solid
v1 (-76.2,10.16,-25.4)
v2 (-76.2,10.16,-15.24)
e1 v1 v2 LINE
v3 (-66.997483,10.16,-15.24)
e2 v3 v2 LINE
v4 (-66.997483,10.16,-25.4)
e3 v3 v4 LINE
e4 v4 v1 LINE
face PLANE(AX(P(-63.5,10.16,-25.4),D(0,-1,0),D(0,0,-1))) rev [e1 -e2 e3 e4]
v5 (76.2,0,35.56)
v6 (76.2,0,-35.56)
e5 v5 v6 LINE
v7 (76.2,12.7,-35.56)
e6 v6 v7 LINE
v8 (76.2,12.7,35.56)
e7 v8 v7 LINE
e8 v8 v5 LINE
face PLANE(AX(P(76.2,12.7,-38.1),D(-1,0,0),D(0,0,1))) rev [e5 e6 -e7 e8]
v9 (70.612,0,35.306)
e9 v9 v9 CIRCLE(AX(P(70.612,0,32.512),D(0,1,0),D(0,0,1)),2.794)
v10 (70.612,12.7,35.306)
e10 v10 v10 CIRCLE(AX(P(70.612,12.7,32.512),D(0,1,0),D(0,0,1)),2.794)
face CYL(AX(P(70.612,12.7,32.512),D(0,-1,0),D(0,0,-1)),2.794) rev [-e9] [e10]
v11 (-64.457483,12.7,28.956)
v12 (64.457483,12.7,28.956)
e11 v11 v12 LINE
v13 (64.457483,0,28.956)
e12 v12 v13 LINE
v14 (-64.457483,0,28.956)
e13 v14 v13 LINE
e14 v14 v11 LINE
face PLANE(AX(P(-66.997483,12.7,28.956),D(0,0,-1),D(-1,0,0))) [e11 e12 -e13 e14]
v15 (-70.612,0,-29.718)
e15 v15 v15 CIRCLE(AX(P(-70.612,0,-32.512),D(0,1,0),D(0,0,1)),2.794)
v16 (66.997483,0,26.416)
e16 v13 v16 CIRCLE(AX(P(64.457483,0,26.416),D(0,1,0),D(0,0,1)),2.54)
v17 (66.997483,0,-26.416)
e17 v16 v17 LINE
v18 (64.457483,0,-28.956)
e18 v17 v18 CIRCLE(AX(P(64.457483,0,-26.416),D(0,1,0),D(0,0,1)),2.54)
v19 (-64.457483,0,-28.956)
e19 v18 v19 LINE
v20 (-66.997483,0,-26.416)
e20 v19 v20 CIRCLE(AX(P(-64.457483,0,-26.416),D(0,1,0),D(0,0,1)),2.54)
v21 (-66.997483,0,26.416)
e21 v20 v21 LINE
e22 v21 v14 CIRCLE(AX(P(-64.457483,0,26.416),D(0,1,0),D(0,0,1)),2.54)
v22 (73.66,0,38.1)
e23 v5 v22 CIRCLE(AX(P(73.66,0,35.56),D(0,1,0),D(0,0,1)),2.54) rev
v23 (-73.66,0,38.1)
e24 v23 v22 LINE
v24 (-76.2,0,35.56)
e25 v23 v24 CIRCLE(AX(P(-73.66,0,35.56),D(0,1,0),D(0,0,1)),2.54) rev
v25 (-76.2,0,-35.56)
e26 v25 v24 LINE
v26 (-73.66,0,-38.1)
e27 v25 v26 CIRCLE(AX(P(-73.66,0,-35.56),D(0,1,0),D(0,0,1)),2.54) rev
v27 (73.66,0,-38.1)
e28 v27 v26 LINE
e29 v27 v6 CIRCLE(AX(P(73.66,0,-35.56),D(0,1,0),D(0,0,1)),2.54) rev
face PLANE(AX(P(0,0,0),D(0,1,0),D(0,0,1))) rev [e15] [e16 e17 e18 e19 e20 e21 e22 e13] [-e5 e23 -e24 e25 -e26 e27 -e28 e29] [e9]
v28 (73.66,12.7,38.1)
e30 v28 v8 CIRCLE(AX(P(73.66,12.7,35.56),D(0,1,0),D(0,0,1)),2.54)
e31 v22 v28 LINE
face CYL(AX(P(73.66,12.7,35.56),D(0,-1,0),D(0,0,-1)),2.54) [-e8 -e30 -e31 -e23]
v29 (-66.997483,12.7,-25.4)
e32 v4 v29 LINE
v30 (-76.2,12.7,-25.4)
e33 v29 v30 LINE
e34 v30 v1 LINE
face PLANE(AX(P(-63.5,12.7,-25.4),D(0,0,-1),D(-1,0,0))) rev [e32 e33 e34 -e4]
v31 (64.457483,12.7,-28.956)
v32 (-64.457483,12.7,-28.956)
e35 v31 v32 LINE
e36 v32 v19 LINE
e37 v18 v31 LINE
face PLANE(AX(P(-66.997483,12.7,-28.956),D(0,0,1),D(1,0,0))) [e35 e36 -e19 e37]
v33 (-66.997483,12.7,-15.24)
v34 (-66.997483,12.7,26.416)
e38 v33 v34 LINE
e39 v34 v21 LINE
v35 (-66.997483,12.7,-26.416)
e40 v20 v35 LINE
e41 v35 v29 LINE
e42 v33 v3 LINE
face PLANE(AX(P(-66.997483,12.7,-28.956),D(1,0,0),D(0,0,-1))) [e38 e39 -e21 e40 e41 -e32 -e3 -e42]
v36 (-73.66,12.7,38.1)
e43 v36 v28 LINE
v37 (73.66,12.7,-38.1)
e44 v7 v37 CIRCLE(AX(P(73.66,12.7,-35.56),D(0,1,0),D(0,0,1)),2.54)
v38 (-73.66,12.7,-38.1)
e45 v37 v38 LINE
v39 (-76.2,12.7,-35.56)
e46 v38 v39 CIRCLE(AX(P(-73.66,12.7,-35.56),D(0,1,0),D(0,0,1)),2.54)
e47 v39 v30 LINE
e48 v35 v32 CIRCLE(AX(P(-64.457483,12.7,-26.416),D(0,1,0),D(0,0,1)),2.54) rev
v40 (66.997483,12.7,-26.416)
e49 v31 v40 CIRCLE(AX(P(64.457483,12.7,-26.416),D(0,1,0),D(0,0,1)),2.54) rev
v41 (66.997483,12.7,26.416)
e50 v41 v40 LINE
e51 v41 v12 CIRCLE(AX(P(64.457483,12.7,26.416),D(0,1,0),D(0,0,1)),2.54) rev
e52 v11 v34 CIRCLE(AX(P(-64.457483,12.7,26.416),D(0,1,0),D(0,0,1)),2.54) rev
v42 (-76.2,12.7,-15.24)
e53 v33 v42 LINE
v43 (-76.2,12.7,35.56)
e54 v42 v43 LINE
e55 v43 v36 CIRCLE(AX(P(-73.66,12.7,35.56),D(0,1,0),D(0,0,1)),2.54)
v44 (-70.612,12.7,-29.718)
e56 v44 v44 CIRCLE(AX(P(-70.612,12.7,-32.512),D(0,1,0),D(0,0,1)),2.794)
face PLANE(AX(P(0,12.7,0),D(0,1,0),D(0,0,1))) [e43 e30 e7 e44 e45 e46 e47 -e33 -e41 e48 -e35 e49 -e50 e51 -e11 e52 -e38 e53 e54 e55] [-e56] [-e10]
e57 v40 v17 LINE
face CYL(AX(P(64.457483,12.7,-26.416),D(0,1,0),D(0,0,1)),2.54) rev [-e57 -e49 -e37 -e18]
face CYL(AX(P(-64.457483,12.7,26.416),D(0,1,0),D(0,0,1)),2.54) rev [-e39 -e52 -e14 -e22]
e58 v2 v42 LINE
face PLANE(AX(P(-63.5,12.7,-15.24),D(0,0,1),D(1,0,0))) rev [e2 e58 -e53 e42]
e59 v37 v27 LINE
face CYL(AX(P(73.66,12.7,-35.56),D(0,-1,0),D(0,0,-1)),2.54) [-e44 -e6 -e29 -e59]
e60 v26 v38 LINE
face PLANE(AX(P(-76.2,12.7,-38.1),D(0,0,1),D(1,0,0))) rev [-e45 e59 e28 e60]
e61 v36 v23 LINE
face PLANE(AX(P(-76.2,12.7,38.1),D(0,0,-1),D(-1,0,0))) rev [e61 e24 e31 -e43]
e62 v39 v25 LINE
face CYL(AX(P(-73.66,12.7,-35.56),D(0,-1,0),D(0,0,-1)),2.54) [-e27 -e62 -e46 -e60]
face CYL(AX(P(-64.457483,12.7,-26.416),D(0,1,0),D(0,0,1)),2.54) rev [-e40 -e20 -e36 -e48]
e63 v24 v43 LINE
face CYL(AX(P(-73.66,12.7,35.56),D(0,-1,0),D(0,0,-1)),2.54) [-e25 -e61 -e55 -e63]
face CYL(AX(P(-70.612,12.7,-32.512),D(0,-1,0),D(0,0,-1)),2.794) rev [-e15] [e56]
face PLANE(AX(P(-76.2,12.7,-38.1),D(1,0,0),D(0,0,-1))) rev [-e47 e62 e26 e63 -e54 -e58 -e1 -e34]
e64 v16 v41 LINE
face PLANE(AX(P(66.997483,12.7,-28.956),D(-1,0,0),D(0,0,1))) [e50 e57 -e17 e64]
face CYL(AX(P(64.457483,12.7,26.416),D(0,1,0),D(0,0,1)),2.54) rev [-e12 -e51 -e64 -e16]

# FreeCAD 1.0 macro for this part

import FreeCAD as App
import Part
import Sketcher
Q = App.Units.Quantity


def edges_at(feature, points):
    """Names of the edges that pass closest to the given points."""
    edges = feature.Shape.Edges
    near = lambda p: min(range(len(edges)), key=lambda i: edges[i].distToShape(Part.Vertex(*p))[0])
    return sorted({f"Edge{near(p) + 1}" for p in points})

doc = App.newDocument("Part")
body = doc.addObject("PartDesign::Body", "Body")

sketch1 = body.newObject("Sketcher::SketchObject", "Sketch")
sketch1.AttachmentSupport = (doc.getObject("XZ_Plane"), [""])
sketch1.MapMode = "FlatFace"
sketch1.addGeometry(Part.LineSegment(App.Vector(-76, -38, 0), App.Vector(-76, 38, 0)), False)
sketch1.addGeometry(Part.LineSegment(App.Vector(-76, 38, 0), App.Vector(76, 38, 0)), False)
sketch1.addGeometry(Part.LineSegment(App.Vector(76, 38, 0), App.Vector(76, -38, 0)), False)
sketch1.addGeometry(Part.LineSegment(App.Vector(76, -38, 0), App.Vector(-76, -38, 0)), False)
sketch1.addConstraint(Sketcher.Constraint("Coincident", 0, 2, 1, 1))
sketch1.addConstraint(Sketcher.Constraint("Coincident", 1, 2, 2, 1))
sketch1.addConstraint(Sketcher.Constraint("Coincident", 2, 2, 3, 1))
sketch1.addConstraint(Sketcher.Constraint("Coincident", 3, 2, 0, 1))
sketch1.addConstraint(Sketcher.Constraint("Vertical", 0))
sketch1.addConstraint(Sketcher.Constraint("Horizontal", 1))
sketch1.addConstraint(Sketcher.Constraint("Vertical", 2))
sketch1.addConstraint(Sketcher.Constraint("Horizontal", 3))
sketch1.addConstraint(Sketcher.Constraint("Symmetric", 0, 2, 2, 2, -1, 1))
sketch1.addConstraint(Sketcher.Constraint("DistanceX", 1, 1, 1, 2, Q("6 in")))
sketch1.addConstraint(Sketcher.Constraint("DistanceY", 0, 1, 0, 2, Q("3 in")))
pad1 = body.newObject("PartDesign::Pad", "Pad")
pad1.Profile = sketch1
pad1.Length = Q("0.5 in")
pad1.Reversed = True
doc.recompute()

fillet = body.newObject("PartDesign::Fillet", "Fillet")
fillet.Base = (pad1, edges_at(pad1, [
    (76.2, 6.35, 38.1),
    (-76.2, 6.35, 38.1),
    (-76.2, 6.35, -38.1),
    (76.2, 6.35, -38.1),
]))
fillet.Radius = Q("0.1 in")

sketch2 = body.newObject("Sketcher::SketchObject", "Sketch001")
sketch2.AttachmentSupport = (doc.getObject("XZ_Plane"), [""])
sketch2.MapMode = "FlatFace"
sketch2.addGeometry(Part.LineSegment(App.Vector(-67, -29, 0), App.Vector(-67, 29, 0)), False)
sketch2.addGeometry(Part.LineSegment(App.Vector(-67, 29, 0), App.Vector(67, 29, 0)), False)
sketch2.addGeometry(Part.LineSegment(App.Vector(67, 29, 0), App.Vector(67, -29, 0)), False)
sketch2.addGeometry(Part.LineSegment(App.Vector(67, -29, 0), App.Vector(-67, -29, 0)), False)
sketch2.addConstraint(Sketcher.Constraint("Coincident", 0, 2, 1, 1))
sketch2.addConstraint(Sketcher.Constraint("Coincident", 1, 2, 2, 1))
sketch2.addConstraint(Sketcher.Constraint("Coincident", 2, 2, 3, 1))
sketch2.addConstraint(Sketcher.Constraint("Coincident", 3, 2, 0, 1))
sketch2.addConstraint(Sketcher.Constraint("Vertical", 0))
sketch2.addConstraint(Sketcher.Constraint("Horizontal", 1))
sketch2.addConstraint(Sketcher.Constraint("Vertical", 2))
sketch2.addConstraint(Sketcher.Constraint("Horizontal", 3))
sketch2.addConstraint(Sketcher.Constraint("Symmetric", 0, 2, 2, 2, -1, 1))
sketch2.addConstraint(Sketcher.Constraint("DistanceY", 0, 1, 0, 2, Q("2.28 in")))
sketch2.addConstraint(Sketcher.Constraint("DistanceX", 1, 1, 1, 2, Q("133.994966 mm")))
pocket1 = body.newObject("PartDesign::Pocket", "Pocket")
pocket1.Profile = sketch2
pocket1.Type = "ThroughAll"
doc.recompute()

fillet2 = body.newObject("PartDesign::Fillet", "Fillet001")
fillet2.Base = (pocket1, edges_at(pocket1, [
    (66.997, 6.35, 28.956),
    (66.997, 6.35, -28.956),
    (-66.997, 6.35, -28.956),
    (-66.997, 6.35, 28.956),
]))
fillet2.Radius = Q("0.1 in")

sketch3 = body.newObject("Sketcher::SketchObject", "Sketch002")
sketch3.AttachmentSupport = (doc.getObject("YZ_Plane"), [""])
sketch3.MapMode = "FlatFace"
sketch3.AttachmentOffset = App.Placement(App.Vector(0, 0, -3 * 25.4), App.Rotation())
sketch3.addGeometry(Part.LineSegment(App.Vector(12.7, -25.4, 0), App.Vector(10.2, -25.4, 0)), False)
sketch3.addGeometry(Part.LineSegment(App.Vector(10.2, -25.4, 0), App.Vector(10.2, -15.2, 0)), False)
sketch3.addGeometry(Part.LineSegment(App.Vector(10.2, -15.2, 0), App.Vector(12.7, -15.2, 0)), False)
sketch3.addGeometry(Part.LineSegment(App.Vector(12.7, -15.2, 0), App.Vector(12.7, -25.4, 0)), False)
sketch3.addConstraint(Sketcher.Constraint("Coincident", 0, 2, 1, 1))
sketch3.addConstraint(Sketcher.Constraint("Coincident", 1, 2, 2, 1))
sketch3.addConstraint(Sketcher.Constraint("Coincident", 2, 2, 3, 1))
sketch3.addConstraint(Sketcher.Constraint("Coincident", 3, 2, 0, 1))
sketch3.addConstraint(Sketcher.Constraint("Horizontal", 0))
sketch3.addConstraint(Sketcher.Constraint("Vertical", 1))
sketch3.addConstraint(Sketcher.Constraint("Horizontal", 2))
sketch3.addConstraint(Sketcher.Constraint("Vertical", 3))
sketch3.addConstraint(Sketcher.Constraint("DistanceX", 0, 2, 0, 1, Q("0.1 in")))
sketch3.addConstraint(Sketcher.Constraint("DistanceY", 1, 1, 1, 2, Q("0.4 in")))
sketch3.addConstraint(Sketcher.Constraint("DistanceY", 0, 2, -1, 1, Q("1 in")))
sketch3.addConstraint(Sketcher.Constraint("DistanceX", -1, 1, 0, 2, Q("0.4 in")))
pocket2 = body.newObject("PartDesign::Pocket", "Pocket001")
pocket2.Profile = sketch3
pocket2.Length = Q("0.5 in")
pocket2.Reversed = True

sketch4 = body.newObject("Sketcher::SketchObject", "Sketch003")
sketch4.AttachmentSupport = (doc.getObject("XZ_Plane"), [""])
sketch4.MapMode = "FlatFace"
sketch4.addGeometry(Part.Circle(App.Vector(-70.6, -32.5, 0), App.Vector(0, 0, 1), 2.8), False)
sketch4.addConstraint(Sketcher.Constraint("Diameter", 0, Q("0.22 in")))
sketch4.addConstraint(Sketcher.Constraint("DistanceX", 0, 3, -1, 1, Q("2.78 in")))
sketch4.addConstraint(Sketcher.Constraint("DistanceY", 0, 3, -1, 1, Q("1.28 in")))
pocket3 = body.newObject("PartDesign::Pocket", "Pocket002")
pocket3.Profile = sketch4
pocket3.Length = Q("0.5 in")

sketch5 = body.newObject("Sketcher::SketchObject", "Sketch004")
sketch5.AttachmentSupport = (doc.getObject("XZ_Plane"), [""])
sketch5.MapMode = "FlatFace"
sketch5.addGeometry(Part.Circle(App.Vector(70.6, 32.5, 0), App.Vector(0, 0, 1), 2.8), False)
sketch5.addConstraint(Sketcher.Constraint("Diameter", 0, Q("0.22 in")))
sketch5.addConstraint(Sketcher.Constraint("DistanceX", -1, 1, 0, 3, Q("2.78 in")))
sketch5.addConstraint(Sketcher.Constraint("DistanceY", -1, 1, 0, 3, Q("1.28 in")))
pocket4 = body.newObject("PartDesign::Pocket", "Pocket003")
pocket4.Profile = sketch5
pocket4.Length = Q("0.5 in")

doc.recompute()
